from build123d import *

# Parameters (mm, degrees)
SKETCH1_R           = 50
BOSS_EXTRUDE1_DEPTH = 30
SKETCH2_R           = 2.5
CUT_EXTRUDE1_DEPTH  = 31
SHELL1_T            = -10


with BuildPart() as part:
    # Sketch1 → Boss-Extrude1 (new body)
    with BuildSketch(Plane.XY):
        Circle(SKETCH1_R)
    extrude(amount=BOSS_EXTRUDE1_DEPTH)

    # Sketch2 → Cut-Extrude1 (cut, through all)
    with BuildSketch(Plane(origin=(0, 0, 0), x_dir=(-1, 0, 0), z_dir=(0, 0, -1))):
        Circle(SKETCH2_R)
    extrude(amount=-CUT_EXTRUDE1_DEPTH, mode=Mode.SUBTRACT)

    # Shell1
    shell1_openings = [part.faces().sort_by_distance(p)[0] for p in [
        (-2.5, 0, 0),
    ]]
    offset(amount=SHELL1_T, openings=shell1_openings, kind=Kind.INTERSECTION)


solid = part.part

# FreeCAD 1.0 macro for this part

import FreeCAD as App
import Part
import Sketcher

V = App.Vector
Q = App.Units.Quantity


def faces_at(feature, points):
    """Names of the faces that lie closest to the given points."""
    faces = feature.Shape.Faces
    near = lambda p: min(range(len(faces)), key=lambda i: faces[i].distToShape(Part.Vertex(*p))[0])
    return sorted({f"Face{near(p) + 1}" for p in points})

doc = App.newDocument("Part")
params = doc.addObject("Spreadsheet::Sheet", "Params")
for row, (alias, value) in enumerate([
    ("sketch1_diameter", "100 mm"),
    ("pad1_length", "30 mm"),
    ("sketch2_diameter", "5 mm"),
    ("thickness_wall", "10 mm"),
], start=1):
    params.set(f"A{row}", alias)
    params.set(f"B{row}", "=" + value)
    params.setAlias(f"B{row}", alias)

body = doc.addObject("PartDesign::Body", "Body")

# Sketch on XY plane
sketch1 = body.newObject("Sketcher::SketchObject", "Sketch")
sketch1.AttachmentSupport = (doc.getObject("XY_Plane"), [""])
sketch1.MapMode = "FlatFace"
sketch1.addGeometry(Part.Circle(V(0, 0, 0), V(0, 0, 1), 50), False)
sketch1.addConstraint(Sketcher.Constraint("Coincident", 0, 3, -1, 1))
sketch1.addConstraint(Sketcher.Constraint("Diameter", 0, Q("100 mm")))
sketch1.setExpression("Constraints[1]", "Params.sketch1_diameter")
pad1 = body.newObject("PartDesign::Pad", "Pad")
pad1.Profile = sketch1
pad1.setExpression("Length", "Params.pad1_length")

# Sketch on XY plane
sketch2 = body.newObject("Sketcher::SketchObject", "Sketch001")
sketch2.AttachmentSupport = (doc.getObject("XY_Plane"), [""])
sketch2.MapMode = "FlatFace"
sketch2.addGeometry(Part.Circle(V(0, 0, 0), V(0, 0, 1), 2.5), False)
sketch2.addConstraint(Sketcher.Constraint("Coincident", 0, 3, -1, 1))
sketch2.addConstraint(Sketcher.Constraint("Diameter", 0, Q("5 mm")))
sketch2.setExpression("Constraints[1]", "Params.sketch2_diameter")
pocket1 = body.newObject("PartDesign::Pocket", "Pocket")
pocket1.Profile = sketch2
pocket1.Type = "ThroughAll"
pocket1.Reversed = True
doc.recompute()

thickness = body.newObject("PartDesign::Thickness", "Thickness")
thickness.Base = (pocket1, faces_at(pocket1, [(-20, -20, 0)]))
thickness.setExpression("Value", "Params.thickness_wall")
thickness.Reversed = True
thickness.Join = "Intersection"

doc.recompute()
